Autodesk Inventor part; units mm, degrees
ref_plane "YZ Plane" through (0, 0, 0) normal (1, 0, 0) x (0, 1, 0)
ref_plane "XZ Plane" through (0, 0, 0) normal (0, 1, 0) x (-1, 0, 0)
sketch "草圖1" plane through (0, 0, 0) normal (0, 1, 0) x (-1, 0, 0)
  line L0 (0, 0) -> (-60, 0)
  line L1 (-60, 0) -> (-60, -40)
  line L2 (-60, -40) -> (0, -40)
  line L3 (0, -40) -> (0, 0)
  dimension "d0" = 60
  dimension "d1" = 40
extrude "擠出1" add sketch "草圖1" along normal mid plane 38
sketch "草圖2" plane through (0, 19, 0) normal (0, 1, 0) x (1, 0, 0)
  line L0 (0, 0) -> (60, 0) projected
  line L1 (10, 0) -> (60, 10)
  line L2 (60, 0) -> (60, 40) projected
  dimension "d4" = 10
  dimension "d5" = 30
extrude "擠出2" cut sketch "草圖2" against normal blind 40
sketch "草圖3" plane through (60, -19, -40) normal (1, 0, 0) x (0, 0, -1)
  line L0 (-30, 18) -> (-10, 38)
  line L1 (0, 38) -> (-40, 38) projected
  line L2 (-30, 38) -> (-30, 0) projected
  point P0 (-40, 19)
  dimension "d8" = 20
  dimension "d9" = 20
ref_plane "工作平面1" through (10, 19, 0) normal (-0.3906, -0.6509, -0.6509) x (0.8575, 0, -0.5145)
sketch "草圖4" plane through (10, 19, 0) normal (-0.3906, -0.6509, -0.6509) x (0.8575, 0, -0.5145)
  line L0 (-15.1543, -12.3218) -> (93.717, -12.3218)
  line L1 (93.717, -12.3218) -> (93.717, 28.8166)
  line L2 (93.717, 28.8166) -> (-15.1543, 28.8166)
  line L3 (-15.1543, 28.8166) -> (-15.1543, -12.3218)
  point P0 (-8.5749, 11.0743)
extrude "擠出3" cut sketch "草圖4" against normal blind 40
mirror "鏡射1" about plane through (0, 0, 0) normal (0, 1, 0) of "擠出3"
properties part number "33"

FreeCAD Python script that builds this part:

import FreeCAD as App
import Part
import Sketcher

V = App.Vector
Q = App.Units.Quantity


def add_polygon(sketch, points):
    """Adds a closed chain of lines whose ends are joined by coincident constraints."""
    first, n = sketch.GeometryCount, len(points)
    for a, b in zip(points, points[1:] + points[:1]):
        sketch.addGeometry(Part.LineSegment(App.Vector(*a, 0), App.Vector(*b, 0)), False)
    for i in range(n):
        sketch.addConstraint(Sketcher.Constraint("Coincident", first + i, 2, first + (i + 1) % n, 1))

doc = App.newDocument("Part")
body = doc.addObject("PartDesign::Body", "Body")

# Sketch on XZ plane
sketch1 = doc.addObject("Sketcher::SketchObject", "Sketch")
body.addObject(sketch1)
sketch1.AttachmentSupport = (doc.XZ_Plane, [""])
sketch1.MapMode = "FlatFace"
add_polygon(sketch1, [(0, -40), (0, 0), (60, 0), (60, -40)])  # lines 0-3
sketch1.addConstraint(Sketcher.Constraint("Vertical", 0))
sketch1.addConstraint(Sketcher.Constraint("Horizontal", 1))
sketch1.addConstraint(Sketcher.Constraint("Vertical", 2))
sketch1.addConstraint(Sketcher.Constraint("Horizontal", 3))
sketch1.addConstraint(Sketcher.Constraint("Coincident", 0, 2, -1, 1))
sketch1.addConstraint(Sketcher.Constraint("DistanceX", 1, 1, 1, 2, Q("60 mm")))
sketch1.addConstraint(Sketcher.Constraint("DistanceY", 0, 1, 0, 2, Q("40 mm")))
pad1 = doc.addObject("PartDesign::Pad", "Pad")
body.addObject(pad1)
pad1.Profile = sketch1
pad1.Length = 38
pad1.Midplane = True

# Sketch on XZ plane
sketch2 = doc.addObject("Sketcher::SketchObject", "Sketch001")
body.addObject(sketch2)
sketch2.AttachmentSupport = (doc.XZ_Plane, [""])
sketch2.MapMode = "FlatFace"
sketch2.AttachmentOffset = App.Placement(V(0, 0, -19), App.Rotation())
add_polygon(sketch2, [(60, -10), (10, 0), (60, 0)])  # lines 0-2
sketch2.addConstraint(Sketcher.Constraint("Horizontal", 1))
sketch2.addConstraint(Sketcher.Constraint("Vertical", 2))
sketch2.addConstraint(Sketcher.Constraint("PointOnObject", 0, 2, -1))
sketch2.addConstraint(Sketcher.Constraint("DistanceY", 2, 2, 2, 1, Q("10 mm")))
sketch2.addConstraint(Sketcher.Constraint("DistanceX", -1, 1, 0, 2, Q("10 mm")))
sketch2.addConstraint(Sketcher.Constraint("DistanceX", 1, 1, 1, 2, Q("50 mm")))
pocket1 = doc.addObject("PartDesign::Pocket", "Pocket")
body.addObject(pocket1)
pocket1.Profile = sketch2
pocket1.Length = 40
pocket1.Reversed = True

# Sketch on an angled plane
sketch3 = doc.addObject("Sketcher::SketchObject", "Sketch002")
body.addObject(sketch3)
sketch3.Placement = App.Placement(V(10, 19, 0), App.Rotation(V(0.857472829, -0.000033492, -0.514529248), V(0.334900362, -0.759138358, 0.55816727), V(-0.390617582, -0.650929299, -0.650929299), "ZXY"))
add_polygon(sketch3, [(-15, 29), (-15, -12), (94, -12), (94, 29)])  # lines 0-3
sketch3.addConstraint(Sketcher.Constraint("Vertical", 0))
sketch3.addConstraint(Sketcher.Constraint("Horizontal", 1))
sketch3.addConstraint(Sketcher.Constraint("Vertical", 2))
sketch3.addConstraint(Sketcher.Constraint("Horizontal", 3))
sketch3.addConstraint(Sketcher.Constraint("DistanceX", 1, 1, 1, 2, Q("108.8713 mm")))
sketch3.addConstraint(Sketcher.Constraint("DistanceY", 0, 2, 0, 1, Q("41.1384 mm")))
sketch3.addConstraint(Sketcher.Constraint("DistanceX", -1, 1, 1, 2, Q("93.717 mm")))
sketch3.addConstraint(Sketcher.Constraint("DistanceY", 0, 2, -1, 1, Q("12.3218 mm")))
pocket2 = doc.addObject("PartDesign::Pocket", "Pocket001")
body.addObject(pocket2)
pocket2.Profile = sketch3
pocket2.Length = 40
doc.recompute()

mirrored = doc.addObject("PartDesign::Mirrored", "Mirrored")
body.addObject(mirrored)
mirrored.Originals = [pocket2]
mirrored.MirrorPlane = (doc.XZ_Plane, [""])
body.Tip = mirrored

doc.recompute()
